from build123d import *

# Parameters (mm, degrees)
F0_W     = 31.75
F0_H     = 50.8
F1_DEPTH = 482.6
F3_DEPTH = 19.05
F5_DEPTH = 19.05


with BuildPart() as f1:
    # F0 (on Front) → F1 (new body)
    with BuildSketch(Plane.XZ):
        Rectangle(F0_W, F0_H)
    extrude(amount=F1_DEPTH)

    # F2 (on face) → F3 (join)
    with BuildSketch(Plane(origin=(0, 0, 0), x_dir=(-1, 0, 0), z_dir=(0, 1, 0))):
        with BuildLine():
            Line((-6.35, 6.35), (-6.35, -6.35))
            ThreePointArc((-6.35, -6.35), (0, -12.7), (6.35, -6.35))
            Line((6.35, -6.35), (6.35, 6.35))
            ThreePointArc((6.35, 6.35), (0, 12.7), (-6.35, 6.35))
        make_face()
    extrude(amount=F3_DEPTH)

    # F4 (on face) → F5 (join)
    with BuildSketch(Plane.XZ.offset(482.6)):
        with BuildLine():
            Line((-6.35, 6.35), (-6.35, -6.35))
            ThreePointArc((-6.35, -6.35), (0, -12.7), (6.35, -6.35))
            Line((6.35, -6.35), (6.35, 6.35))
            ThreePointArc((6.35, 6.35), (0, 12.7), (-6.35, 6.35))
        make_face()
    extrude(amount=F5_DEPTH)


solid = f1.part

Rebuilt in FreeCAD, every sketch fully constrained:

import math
import FreeCAD as App
import Part
import Sketcher
from FreeCAD import Vector
Q = App.Units.Quantity

doc = App.newDocument("Part")
body = doc.addObject("PartDesign::Body", "Body")

sketch1 = body.newObject("Sketcher::SketchObject", "Sketch")
sketch1.AttachmentSupport = (doc.getObject("XZ_Plane"), [""])
sketch1.MapMode = "FlatFace"
sketch1.addGeometry([
    Part.LineSegment(Vector(-15.875, 25.4, 0), Vector(-15.875, -25.4, 0)),
    Part.LineSegment(Vector(-15.875, -25.4, 0), Vector(15.875, -25.4, 0)),
    Part.LineSegment(Vector(15.875, -25.4, 0), Vector(15.875, 25.4, 0)),
    Part.LineSegment(Vector(15.875, 25.4, 0), Vector(-15.875, 25.4, 0)),
], False)
sketch1.addConstraint([
    Sketcher.Constraint("Coincident", 0, 2, 1, 1),
    Sketcher.Constraint("Coincident", 1, 2, 2, 1),
    Sketcher.Constraint("Coincident", 2, 2, 3, 1),
    Sketcher.Constraint("Coincident", 3, 2, 0, 1),
    Sketcher.Constraint("Vertical", 0),
    Sketcher.Constraint("Horizontal", 1),
    Sketcher.Constraint("Vertical", 2),
    Sketcher.Constraint("Horizontal", 3),
    Sketcher.Constraint("Symmetric", 0, 2, 2, 2, -1, 1),
    Sketcher.Constraint("DistanceY", 0, 2, 0, 1, Q("2 in")),
    Sketcher.Constraint("DistanceX", 1, 1, 1, 2, Q("1.25 in")),
])
pad1 = body.newObject("PartDesign::Pad", "Pad")
pad1.Profile = sketch1
pad1.Length = Q("19 in")

sketch2 = body.newObject("Sketcher::SketchObject", "Sketch001")
sketch2.AttachmentSupport = (doc.getObject("XZ_Plane"), [""])
sketch2.MapMode = "FlatFace"
sketch2.addGeometry([
    Part.LineSegment(Vector(6.35, 6.35, 0), Vector(6.35, -6.35, 0)),
    Part.ArcOfCircle(Part.Circle(Vector(0, -6.35, 0), Vector(0, 0, 1), 6.35), math.radians(180), math.radians(360)),
    Part.LineSegment(Vector(-6.35, -6.35, 0), Vector(-6.35, 6.35, 0)),
    Part.ArcOfCircle(Part.Circle(Vector(0, 6.35, 0), Vector(0, 0, 1), 6.35), math.radians(0), math.radians(180)),
], False)
sketch2.addConstraint([
    Sketcher.Constraint("Tangent", 0, 2, 1, 2),
    Sketcher.Constraint("Tangent", 1, 1, 2, 1),
    Sketcher.Constraint("Tangent", 2, 2, 3, 2),
    Sketcher.Constraint("Tangent", 3, 1, 0, 1),
    Sketcher.Constraint("Vertical", 0),
    Sketcher.Constraint("Vertical", 2),
    Sketcher.Constraint("Symmetric", 1, 3, 3, 3, -1, 1),
    Sketcher.Constraint("Radius", 1, Q("0.25 in")),
    Sketcher.Constraint("DistanceY", 0, 2, 0, 1, Q("0.5 in")),
])
pad2 = body.newObject("PartDesign::Pad", "Pad001")
pad2.Profile = sketch2
pad2.Length = Q("0.75 in")
pad2.Reversed = True

sketch3 = body.newObject("Sketcher::SketchObject", "Sketch002")
sketch3.AttachmentSupport = (doc.getObject("XZ_Plane"), [""])
sketch3.MapMode = "FlatFace"
sketch3.AttachmentOffset = App.Placement(Vector(0, 0, 19 * 25.4), App.Rotation())
sketch3.addGeometry([
    Part.LineSegment(Vector(-6.35, 6.35, 0), Vector(-6.35, -6.35, 0)),
    Part.ArcOfCircle(Part.Circle(Vector(0, -6.35, 0), Vector(0, 0, 1), 6.35), math.radians(180), math.radians(360)),
    Part.LineSegment(Vector(6.35, -6.35, 0), Vector(6.35, 6.35, 0)),
    Part.ArcOfCircle(Part.Circle(Vector(0, 6.35, 0), Vector(0, 0, 1), 6.35), math.radians(0), math.radians(180)),
], False)
sketch3.addConstraint([
    Sketcher.Constraint("Tangent", 0, 2, 1, 1),
    Sketcher.Constraint("Tangent", 1, 2, 2, 1),
    Sketcher.Constraint("Tangent", 2, 2, 3, 1),
    Sketcher.Constraint("Tangent", 3, 2, 0, 1),
    Sketcher.Constraint("Vertical", 0),
    Sketcher.Constraint("Vertical", 2),
    Sketcher.Constraint("Symmetric", 1, 3, 3, 3, -1, 1),
    Sketcher.Constraint("Radius", 1, Q("0.25 in")),
    Sketcher.Constraint("DistanceY", 0, 2, 0, 1, Q("0.5 in")),
])
pad3 = body.newObject("PartDesign::Pad", "Pad002")
pad3.Profile = sketch3
pad3.Length = Q("0.75 in")

doc.recompute()
